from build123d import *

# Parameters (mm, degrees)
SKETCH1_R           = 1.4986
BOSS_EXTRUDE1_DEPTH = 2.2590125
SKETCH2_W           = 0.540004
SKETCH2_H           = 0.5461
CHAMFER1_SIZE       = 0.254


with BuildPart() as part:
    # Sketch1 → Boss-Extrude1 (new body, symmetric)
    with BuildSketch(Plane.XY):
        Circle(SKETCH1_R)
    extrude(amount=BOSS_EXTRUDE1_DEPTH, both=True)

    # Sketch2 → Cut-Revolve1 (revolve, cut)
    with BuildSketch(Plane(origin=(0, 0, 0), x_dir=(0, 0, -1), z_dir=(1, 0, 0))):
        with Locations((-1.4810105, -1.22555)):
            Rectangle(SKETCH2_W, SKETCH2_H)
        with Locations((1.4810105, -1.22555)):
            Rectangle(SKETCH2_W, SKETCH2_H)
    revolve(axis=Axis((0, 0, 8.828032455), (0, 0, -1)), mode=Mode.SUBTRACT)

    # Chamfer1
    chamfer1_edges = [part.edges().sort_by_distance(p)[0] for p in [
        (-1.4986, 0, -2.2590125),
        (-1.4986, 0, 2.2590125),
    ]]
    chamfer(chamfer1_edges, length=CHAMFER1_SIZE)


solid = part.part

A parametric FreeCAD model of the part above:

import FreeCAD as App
import Part
import Sketcher
from FreeCAD import Vector
Q = App.Units.Quantity


def edges_at(feature, points):
    """Names of the edges that pass closest to the given points."""
    edges = feature.Shape.Edges
    near = lambda p: min(range(len(edges)), key=lambda i: edges[i].distToShape(Part.Vertex(*p))[0])
    return sorted({f"Edge{near(p) + 1}" for p in points})


def add_polygon(sketch, points):
    """Adds a closed chain of lines whose ends are joined by coincident constraints."""
    first, n = sketch.GeometryCount, len(points)
    for a, b in zip(points, points[1:] + points[:1]):
        sketch.addGeometry(Part.LineSegment(App.Vector(*a, 0), App.Vector(*b, 0)), False)
    for i in range(n):
        sketch.addConstraint(Sketcher.Constraint("Coincident", first + i, 2, first + (i + 1) % n, 1))

doc = App.newDocument("Part")
body = doc.addObject("PartDesign::Body", "Body")

# Sketch on XY plane
sketch1 = body.newObject("Sketcher::SketchObject", "Sketch")
sketch1.AttachmentSupport = (doc.getObject("XY_Plane"), [""])
sketch1.MapMode = "FlatFace"
sketch1.addGeometry(Part.Circle(Vector(0, 0, 0), Vector(0, 0, 1), 1.5), False)
sketch1.addConstraint([
    Sketcher.Constraint("Coincident", 0, 3, -1, 1),
    Sketcher.Constraint("Diameter", 0, Q("0.118 in")),
])
pad1 = body.newObject("PartDesign::Pad", "Pad")
pad1.Profile = sketch1
pad1.Length = 4.518025
pad1.Midplane = True

# Sketch on YZ plane
sketch2 = body.newObject("Sketcher::SketchObject", "Sketch001")
sketch2.AttachmentSupport = (doc.getObject("YZ_Plane"), [""])
sketch2.MapMode = "FlatFace"
add_polygon(sketch2, [(-1, 1.8), (-1.5, 1.8), (-1.5, 1.2), (-1, 1.2)])  # lines 0-3
add_polygon(sketch2, [(-1, -1.2), (-1.5, -1.2), (-1.5, -1.8), (-1, -1.8)])  # lines 4-7
sketch2.addConstraint([
    Sketcher.Constraint("Horizontal", 0),
    Sketcher.Constraint("Vertical", 1),
    Sketcher.Constraint("Horizontal", 2),
    Sketcher.Constraint("Vertical", 3),
    Sketcher.Constraint("Horizontal", 4),
    Sketcher.Constraint("Vertical", 5),
    Sketcher.Constraint("Horizontal", 6),
    Sketcher.Constraint("Vertical", 7),
    Sketcher.Constraint("Symmetric", 1, 2, 4, 2, -1),
    Sketcher.Constraint("Symmetric", 3, 2, 6, 2, -1),
    Sketcher.Constraint("DistanceX", 0, 2, 0, 1, Q("0.0215 in")),
    Sketcher.Constraint("DistanceX", 0, 2, -1, 1, Q("0.059 in")),
    Sketcher.Constraint("DistanceY", 1, 2, 1, 1, 0.540004),
    Sketcher.Constraint("DistanceY", -1, 1, 1, 2, 1.211008),
])
groove = body.newObject("PartDesign::Groove", "Groove")
groove.Profile = sketch2
groove.ReferenceAxis = (sketch2, ["V_Axis"])
groove.Angle = 360
doc.recompute()

chamfer = body.newObject("PartDesign::Chamfer", "Chamfer")
chamfer.Base = (groove, edges_at(groove, [(-1.499, 0, -2.259), (-1.499, 0, 2.259)]))
chamfer.Size = Q("0.01 in")

doc.recompute()
